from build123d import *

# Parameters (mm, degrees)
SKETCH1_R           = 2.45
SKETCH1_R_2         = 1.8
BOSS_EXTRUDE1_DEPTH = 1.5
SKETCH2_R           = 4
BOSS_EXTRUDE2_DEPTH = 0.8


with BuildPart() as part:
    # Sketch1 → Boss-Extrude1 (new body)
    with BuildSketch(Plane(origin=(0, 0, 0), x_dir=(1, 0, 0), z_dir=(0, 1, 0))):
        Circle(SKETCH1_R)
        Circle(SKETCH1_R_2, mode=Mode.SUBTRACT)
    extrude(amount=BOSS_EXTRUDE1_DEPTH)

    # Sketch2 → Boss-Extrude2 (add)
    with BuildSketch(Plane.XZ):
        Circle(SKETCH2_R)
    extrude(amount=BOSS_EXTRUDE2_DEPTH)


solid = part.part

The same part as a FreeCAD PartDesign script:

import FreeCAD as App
import Part
import Sketcher

doc = App.newDocument("Part")
body = doc.addObject("PartDesign::Body", "Body")

sketch1 = body.newObject("Sketcher::SketchObject", "Sketch")
sketch1.AttachmentSupport = (doc.getObject("XZ_Plane"), [""])
sketch1.MapMode = "FlatFace"
sketch1.addGeometry(Part.Circle(App.Vector(0, 0, 0), App.Vector(0, 0, 1), 2.45), False)
sketch1.addGeometry(Part.Circle(App.Vector(0, 0, 0), App.Vector(0, 0, 1), 1.8), False)
sketch1.addConstraint(Sketcher.Constraint("Coincident", 0, 3, -1, 1))
sketch1.addConstraint(Sketcher.Constraint("Coincident", 1, 3, -1, 1))
sketch1.addConstraint(Sketcher.Constraint("Diameter", 0, 4.9))
sketch1.addConstraint(Sketcher.Constraint("Diameter", 1, 3.6))
pad1 = body.newObject("PartDesign::Pad", "Pad")
pad1.Profile = sketch1
pad1.Length = 1.5
pad1.Reversed = True

sketch2 = body.newObject("Sketcher::SketchObject", "Sketch001")
sketch2.AttachmentSupport = (doc.getObject("XZ_Plane"), [""])
sketch2.MapMode = "FlatFace"
sketch2.addGeometry(Part.Circle(App.Vector(0, 0, 0), App.Vector(0, 0, 1), 4), False)
sketch2.addConstraint(Sketcher.Constraint("Coincident", 0, 3, -1, 1))
sketch2.addConstraint(Sketcher.Constraint("Diameter", 0, 8.0))
pad2 = body.newObject("PartDesign::Pad", "Pad001")
pad2.Profile = sketch2
pad2.Length = 0.8

doc.recompute()
